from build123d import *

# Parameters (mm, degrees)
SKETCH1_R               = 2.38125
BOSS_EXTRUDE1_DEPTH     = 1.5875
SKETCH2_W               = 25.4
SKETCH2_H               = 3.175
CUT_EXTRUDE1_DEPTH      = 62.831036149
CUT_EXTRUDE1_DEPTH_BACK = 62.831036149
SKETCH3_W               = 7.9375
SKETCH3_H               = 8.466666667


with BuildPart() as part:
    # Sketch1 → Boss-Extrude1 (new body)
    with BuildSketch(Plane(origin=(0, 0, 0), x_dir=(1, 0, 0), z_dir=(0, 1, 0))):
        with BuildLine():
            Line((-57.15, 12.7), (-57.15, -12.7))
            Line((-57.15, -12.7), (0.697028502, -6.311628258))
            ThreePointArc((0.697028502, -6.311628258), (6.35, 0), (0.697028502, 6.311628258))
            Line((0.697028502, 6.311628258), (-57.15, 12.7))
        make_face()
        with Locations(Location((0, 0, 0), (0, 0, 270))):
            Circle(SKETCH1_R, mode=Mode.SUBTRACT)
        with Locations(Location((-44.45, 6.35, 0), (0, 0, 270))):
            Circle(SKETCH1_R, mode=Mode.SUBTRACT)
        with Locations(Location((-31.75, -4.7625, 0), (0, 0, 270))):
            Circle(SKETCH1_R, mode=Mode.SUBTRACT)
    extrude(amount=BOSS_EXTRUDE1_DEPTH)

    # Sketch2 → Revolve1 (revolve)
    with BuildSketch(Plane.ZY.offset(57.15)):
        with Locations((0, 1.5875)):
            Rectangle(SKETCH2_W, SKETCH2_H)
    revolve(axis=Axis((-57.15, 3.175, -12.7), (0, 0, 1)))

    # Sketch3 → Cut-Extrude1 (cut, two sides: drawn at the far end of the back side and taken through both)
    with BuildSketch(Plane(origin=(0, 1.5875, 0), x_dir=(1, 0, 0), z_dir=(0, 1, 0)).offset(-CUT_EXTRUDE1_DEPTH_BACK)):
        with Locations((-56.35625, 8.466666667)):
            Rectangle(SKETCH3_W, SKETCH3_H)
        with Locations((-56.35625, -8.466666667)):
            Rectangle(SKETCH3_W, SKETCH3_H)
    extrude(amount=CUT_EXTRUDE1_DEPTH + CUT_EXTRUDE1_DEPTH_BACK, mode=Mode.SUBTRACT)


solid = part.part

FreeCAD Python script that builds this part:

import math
import FreeCAD as App
import Part
import Sketcher
Q = App.Units.Quantity


def add_polygon(sketch, points):
    """Adds a closed chain of lines whose ends are joined by coincident constraints."""
    first, n = sketch.GeometryCount, len(points)
    for a, b in zip(points, points[1:] + points[:1]):
        sketch.addGeometry(Part.LineSegment(App.Vector(*a, 0), App.Vector(*b, 0)), False)
    for i in range(n):
        sketch.addConstraint(Sketcher.Constraint("Coincident", first + i, 2, first + (i + 1) % n, 1))

doc = App.newDocument("Part")
params = doc.addObject("Spreadsheet::Sheet", "Params")
for row, (alias, value) in enumerate([
    ("sketch1_height", "1 in"),
    ("sketch1_radius", "0.25 in"),
    ("sketch1_diameter", "0.1875 in"),
    ("pad1_length", "0.0625 in"),
    ("sketch2_height", "1 in"),
    ("sketch2_width", "0.125 in"),
    ("revolution_angle", "360 deg"),
    ("sketch3_width", "0.3125 in"),
], start=1):
    params.set(f"A{row}", alias)
    params.set(f"B{row}", "=" + value)
    params.setAlias(f"B{row}", alias)

body = doc.addObject("PartDesign::Body", "Body")

# Sketch on XZ plane
sketch1 = body.newObject("Sketcher::SketchObject", "Sketch")
sketch1.AttachmentSupport = (doc.getObject("XZ_Plane"), [""])
sketch1.MapMode = "FlatFace"
sketch1.addGeometry(Part.LineSegment(App.Vector(-57.15, -12.7, 0), App.Vector(-57.15, 12.7, 0)), False)
sketch1.addGeometry(Part.LineSegment(App.Vector(-57.15, 12.7, 0), App.Vector(0.697029, 6.311628, 0)), False)
sketch1.addGeometry(Part.ArcOfCircle(Part.Circle(App.Vector(0, 0, 0), App.Vector(0, 0, 1), 6.35), math.radians(-83.698043), math.radians(83.698043)), False)
sketch1.addGeometry(Part.LineSegment(App.Vector(0.697029, -6.311628, 0), App.Vector(-57.15, -12.7, 0)), False)
sketch1.addGeometry(Part.Circle(App.Vector(-31.75, 4.7625, 0), App.Vector(0, 0, 1), 2.38125), False)
sketch1.addGeometry(Part.Circle(App.Vector(0, 0, 0), App.Vector(0, 0, 1), 2.38125), False)
sketch1.addGeometry(Part.Circle(App.Vector(-44.45, -6.35, 0), App.Vector(0, 0, 1), 2.38125), False)
sketch1.addConstraint(Sketcher.Constraint("Coincident", 0, 2, 1, 1))
sketch1.addConstraint(Sketcher.Constraint("Tangent", 1, 2, 2, 2))
sketch1.addConstraint(Sketcher.Constraint("Tangent", 2, 1, 3, 1))
sketch1.addConstraint(Sketcher.Constraint("Coincident", 3, 2, 0, 1))
sketch1.addConstraint(Sketcher.Constraint("Vertical", 0))
sketch1.addConstraint(Sketcher.Constraint("Coincident", 2, 3, -1, 1))
sketch1.addConstraint(Sketcher.Constraint("Coincident", 5, 3, -1, 1))
sketch1.addConstraint(Sketcher.Constraint("Equal", 4, 5))
sketch1.addConstraint(Sketcher.Constraint("Equal", 5, 6))
sketch1.addConstraint(Sketcher.Constraint("Vertical", 1, 2, 2, 1))
sketch1.addConstraint(Sketcher.Constraint("DistanceY", 0, 1, 0, 2, Q("1 in")))
sketch1.addConstraint(Sketcher.Constraint("Radius", 2, Q("0.25 in")))
sketch1.addConstraint(Sketcher.Constraint("Diameter", 4, Q("0.1875 in")))
sketch1.addConstraint(Sketcher.Constraint("DistanceX", 0, 2, 4, 3, Q("1 in")))
sketch1.addConstraint(Sketcher.Constraint("DistanceX", 6, 3, 4, 3, Q("0.5 in")))
sketch1.addConstraint(Sketcher.Constraint("DistanceX", 4, 3, -1, 1, Q("1.25 in")))
sketch1.addConstraint(Sketcher.Constraint("DistanceY", 6, 3, -1, 1, Q("0.25 in")))
sketch1.addConstraint(Sketcher.Constraint("DistanceY", -1, 1, 4, 3, Q("0.1875 in")))
sketch1.setExpression("Constraints[10]", "Params.sketch1_height")
sketch1.setExpression("Constraints[11]", "Params.sketch1_radius")
sketch1.setExpression("Constraints[12]", "Params.sketch1_diameter")
pad1 = body.newObject("PartDesign::Pad", "Pad")
pad1.Profile = sketch1
pad1.setExpression("Length", "Params.pad1_length")
pad1.Reversed = True

# Sketch on YZ plane
sketch2 = body.newObject("Sketcher::SketchObject", "Sketch001")
sketch2.AttachmentSupport = (doc.getObject("YZ_Plane"), [""])
sketch2.MapMode = "FlatFace"
sketch2.AttachmentOffset = App.Placement(App.Vector(0, 0, -2.25 * 25.4), App.Rotation())
add_polygon(sketch2, [(3.175, -12.7), (0, -12.7), (0, 12.7), (3.175, 12.7)])  # lines 0-3
sketch2.addGeometry(Part.LineSegment(App.Vector(3.175, -12.7, 0), App.Vector(3.175, 12.7, 0)), True)  # axis
sketch2.addConstraint(Sketcher.Constraint("Horizontal", 0))
sketch2.addConstraint(Sketcher.Constraint("Vertical", 1))
sketch2.addConstraint(Sketcher.Constraint("Horizontal", 2))
sketch2.addConstraint(Sketcher.Constraint("Vertical", 3))
sketch2.addConstraint(Sketcher.Constraint("Vertical", 4))
sketch2.addConstraint(Sketcher.Constraint("Coincident", 4, 1, 3, 2))
sketch2.addConstraint(Sketcher.Constraint("Symmetric", 0, 2, 1, 2, -1, 1))
sketch2.addConstraint(Sketcher.Constraint("Horizontal", 1, 2, 4, 2))
sketch2.addConstraint(Sketcher.Constraint("DistanceY", 1, 1, 1, 2, Q("1 in")))
sketch2.addConstraint(Sketcher.Constraint("DistanceX", 0, 2, 0, 1, Q("0.125 in")))
sketch2.setExpression("Constraints[12]", "Params.sketch2_height")
sketch2.setExpression("Constraints[13]", "Params.sketch2_width")
revolution = body.newObject("PartDesign::Revolution", "Revolution")
revolution.Profile = sketch2
revolution.ReferenceAxis = (sketch2, ["Axis0"])
revolution.setExpression("Angle", "Params.revolution_angle")

# Sketch on XZ plane
sketch3 = body.newObject("Sketcher::SketchObject", "Sketch002")
sketch3.AttachmentSupport = (doc.getObject("XZ_Plane"), [""])
sketch3.MapMode = "FlatFace"
sketch3.AttachmentOffset = App.Placement(App.Vector(0, 0, -0.0625 * 25.4), App.Rotation())
add_polygon(sketch3, [(-60.325, -12.7), (-60.325, -4.233333), (-52.3875, -4.233333), (-52.3875, -12.7)])  # lines 0-3
add_polygon(sketch3, [(-60.325, 4.233333), (-60.325, 12.7), (-52.3875, 12.7), (-52.3875, 4.233333)])  # lines 4-7
sketch3.addConstraint(Sketcher.Constraint("Vertical", 0))
sketch3.addConstraint(Sketcher.Constraint("Horizontal", 1))
sketch3.addConstraint(Sketcher.Constraint("Vertical", 2))
sketch3.addConstraint(Sketcher.Constraint("Horizontal", 3))
sketch3.addConstraint(Sketcher.Constraint("Vertical", 4))
sketch3.addConstraint(Sketcher.Constraint("Horizontal", 5))
sketch3.addConstraint(Sketcher.Constraint("Vertical", 6))
sketch3.addConstraint(Sketcher.Constraint("Horizontal", 7))
sketch3.addConstraint(Sketcher.Constraint("Symmetric", 3, 2, 4, 2, -1))
sketch3.addConstraint(Sketcher.Constraint("Symmetric", 1, 2, 6, 2, -1))
sketch3.addConstraint(Sketcher.Constraint("DistanceY", 3, 2, 4, 2, Q("1 in")))
sketch3.addConstraint(Sketcher.Constraint("DistanceX", 1, 1, 1, 2, Q("0.3125 in")))
sketch3.addConstraint(Sketcher.Constraint("DistanceX", 0, 2, -1, 1, Q("2.375 in")))
sketch3.addConstraint(Sketcher.Constraint("DistanceY", 0, 1, 0, 2, Q("8.466667 mm")))
sketch3.setExpression("Constraints[19]", "Params.sketch3_width")
pocket1 = body.newObject("PartDesign::Pocket", "Pocket")
pocket1.Profile = sketch3
pocket1.Type = "ThroughAll"
pocket1.Midplane = True

doc.recompute()
